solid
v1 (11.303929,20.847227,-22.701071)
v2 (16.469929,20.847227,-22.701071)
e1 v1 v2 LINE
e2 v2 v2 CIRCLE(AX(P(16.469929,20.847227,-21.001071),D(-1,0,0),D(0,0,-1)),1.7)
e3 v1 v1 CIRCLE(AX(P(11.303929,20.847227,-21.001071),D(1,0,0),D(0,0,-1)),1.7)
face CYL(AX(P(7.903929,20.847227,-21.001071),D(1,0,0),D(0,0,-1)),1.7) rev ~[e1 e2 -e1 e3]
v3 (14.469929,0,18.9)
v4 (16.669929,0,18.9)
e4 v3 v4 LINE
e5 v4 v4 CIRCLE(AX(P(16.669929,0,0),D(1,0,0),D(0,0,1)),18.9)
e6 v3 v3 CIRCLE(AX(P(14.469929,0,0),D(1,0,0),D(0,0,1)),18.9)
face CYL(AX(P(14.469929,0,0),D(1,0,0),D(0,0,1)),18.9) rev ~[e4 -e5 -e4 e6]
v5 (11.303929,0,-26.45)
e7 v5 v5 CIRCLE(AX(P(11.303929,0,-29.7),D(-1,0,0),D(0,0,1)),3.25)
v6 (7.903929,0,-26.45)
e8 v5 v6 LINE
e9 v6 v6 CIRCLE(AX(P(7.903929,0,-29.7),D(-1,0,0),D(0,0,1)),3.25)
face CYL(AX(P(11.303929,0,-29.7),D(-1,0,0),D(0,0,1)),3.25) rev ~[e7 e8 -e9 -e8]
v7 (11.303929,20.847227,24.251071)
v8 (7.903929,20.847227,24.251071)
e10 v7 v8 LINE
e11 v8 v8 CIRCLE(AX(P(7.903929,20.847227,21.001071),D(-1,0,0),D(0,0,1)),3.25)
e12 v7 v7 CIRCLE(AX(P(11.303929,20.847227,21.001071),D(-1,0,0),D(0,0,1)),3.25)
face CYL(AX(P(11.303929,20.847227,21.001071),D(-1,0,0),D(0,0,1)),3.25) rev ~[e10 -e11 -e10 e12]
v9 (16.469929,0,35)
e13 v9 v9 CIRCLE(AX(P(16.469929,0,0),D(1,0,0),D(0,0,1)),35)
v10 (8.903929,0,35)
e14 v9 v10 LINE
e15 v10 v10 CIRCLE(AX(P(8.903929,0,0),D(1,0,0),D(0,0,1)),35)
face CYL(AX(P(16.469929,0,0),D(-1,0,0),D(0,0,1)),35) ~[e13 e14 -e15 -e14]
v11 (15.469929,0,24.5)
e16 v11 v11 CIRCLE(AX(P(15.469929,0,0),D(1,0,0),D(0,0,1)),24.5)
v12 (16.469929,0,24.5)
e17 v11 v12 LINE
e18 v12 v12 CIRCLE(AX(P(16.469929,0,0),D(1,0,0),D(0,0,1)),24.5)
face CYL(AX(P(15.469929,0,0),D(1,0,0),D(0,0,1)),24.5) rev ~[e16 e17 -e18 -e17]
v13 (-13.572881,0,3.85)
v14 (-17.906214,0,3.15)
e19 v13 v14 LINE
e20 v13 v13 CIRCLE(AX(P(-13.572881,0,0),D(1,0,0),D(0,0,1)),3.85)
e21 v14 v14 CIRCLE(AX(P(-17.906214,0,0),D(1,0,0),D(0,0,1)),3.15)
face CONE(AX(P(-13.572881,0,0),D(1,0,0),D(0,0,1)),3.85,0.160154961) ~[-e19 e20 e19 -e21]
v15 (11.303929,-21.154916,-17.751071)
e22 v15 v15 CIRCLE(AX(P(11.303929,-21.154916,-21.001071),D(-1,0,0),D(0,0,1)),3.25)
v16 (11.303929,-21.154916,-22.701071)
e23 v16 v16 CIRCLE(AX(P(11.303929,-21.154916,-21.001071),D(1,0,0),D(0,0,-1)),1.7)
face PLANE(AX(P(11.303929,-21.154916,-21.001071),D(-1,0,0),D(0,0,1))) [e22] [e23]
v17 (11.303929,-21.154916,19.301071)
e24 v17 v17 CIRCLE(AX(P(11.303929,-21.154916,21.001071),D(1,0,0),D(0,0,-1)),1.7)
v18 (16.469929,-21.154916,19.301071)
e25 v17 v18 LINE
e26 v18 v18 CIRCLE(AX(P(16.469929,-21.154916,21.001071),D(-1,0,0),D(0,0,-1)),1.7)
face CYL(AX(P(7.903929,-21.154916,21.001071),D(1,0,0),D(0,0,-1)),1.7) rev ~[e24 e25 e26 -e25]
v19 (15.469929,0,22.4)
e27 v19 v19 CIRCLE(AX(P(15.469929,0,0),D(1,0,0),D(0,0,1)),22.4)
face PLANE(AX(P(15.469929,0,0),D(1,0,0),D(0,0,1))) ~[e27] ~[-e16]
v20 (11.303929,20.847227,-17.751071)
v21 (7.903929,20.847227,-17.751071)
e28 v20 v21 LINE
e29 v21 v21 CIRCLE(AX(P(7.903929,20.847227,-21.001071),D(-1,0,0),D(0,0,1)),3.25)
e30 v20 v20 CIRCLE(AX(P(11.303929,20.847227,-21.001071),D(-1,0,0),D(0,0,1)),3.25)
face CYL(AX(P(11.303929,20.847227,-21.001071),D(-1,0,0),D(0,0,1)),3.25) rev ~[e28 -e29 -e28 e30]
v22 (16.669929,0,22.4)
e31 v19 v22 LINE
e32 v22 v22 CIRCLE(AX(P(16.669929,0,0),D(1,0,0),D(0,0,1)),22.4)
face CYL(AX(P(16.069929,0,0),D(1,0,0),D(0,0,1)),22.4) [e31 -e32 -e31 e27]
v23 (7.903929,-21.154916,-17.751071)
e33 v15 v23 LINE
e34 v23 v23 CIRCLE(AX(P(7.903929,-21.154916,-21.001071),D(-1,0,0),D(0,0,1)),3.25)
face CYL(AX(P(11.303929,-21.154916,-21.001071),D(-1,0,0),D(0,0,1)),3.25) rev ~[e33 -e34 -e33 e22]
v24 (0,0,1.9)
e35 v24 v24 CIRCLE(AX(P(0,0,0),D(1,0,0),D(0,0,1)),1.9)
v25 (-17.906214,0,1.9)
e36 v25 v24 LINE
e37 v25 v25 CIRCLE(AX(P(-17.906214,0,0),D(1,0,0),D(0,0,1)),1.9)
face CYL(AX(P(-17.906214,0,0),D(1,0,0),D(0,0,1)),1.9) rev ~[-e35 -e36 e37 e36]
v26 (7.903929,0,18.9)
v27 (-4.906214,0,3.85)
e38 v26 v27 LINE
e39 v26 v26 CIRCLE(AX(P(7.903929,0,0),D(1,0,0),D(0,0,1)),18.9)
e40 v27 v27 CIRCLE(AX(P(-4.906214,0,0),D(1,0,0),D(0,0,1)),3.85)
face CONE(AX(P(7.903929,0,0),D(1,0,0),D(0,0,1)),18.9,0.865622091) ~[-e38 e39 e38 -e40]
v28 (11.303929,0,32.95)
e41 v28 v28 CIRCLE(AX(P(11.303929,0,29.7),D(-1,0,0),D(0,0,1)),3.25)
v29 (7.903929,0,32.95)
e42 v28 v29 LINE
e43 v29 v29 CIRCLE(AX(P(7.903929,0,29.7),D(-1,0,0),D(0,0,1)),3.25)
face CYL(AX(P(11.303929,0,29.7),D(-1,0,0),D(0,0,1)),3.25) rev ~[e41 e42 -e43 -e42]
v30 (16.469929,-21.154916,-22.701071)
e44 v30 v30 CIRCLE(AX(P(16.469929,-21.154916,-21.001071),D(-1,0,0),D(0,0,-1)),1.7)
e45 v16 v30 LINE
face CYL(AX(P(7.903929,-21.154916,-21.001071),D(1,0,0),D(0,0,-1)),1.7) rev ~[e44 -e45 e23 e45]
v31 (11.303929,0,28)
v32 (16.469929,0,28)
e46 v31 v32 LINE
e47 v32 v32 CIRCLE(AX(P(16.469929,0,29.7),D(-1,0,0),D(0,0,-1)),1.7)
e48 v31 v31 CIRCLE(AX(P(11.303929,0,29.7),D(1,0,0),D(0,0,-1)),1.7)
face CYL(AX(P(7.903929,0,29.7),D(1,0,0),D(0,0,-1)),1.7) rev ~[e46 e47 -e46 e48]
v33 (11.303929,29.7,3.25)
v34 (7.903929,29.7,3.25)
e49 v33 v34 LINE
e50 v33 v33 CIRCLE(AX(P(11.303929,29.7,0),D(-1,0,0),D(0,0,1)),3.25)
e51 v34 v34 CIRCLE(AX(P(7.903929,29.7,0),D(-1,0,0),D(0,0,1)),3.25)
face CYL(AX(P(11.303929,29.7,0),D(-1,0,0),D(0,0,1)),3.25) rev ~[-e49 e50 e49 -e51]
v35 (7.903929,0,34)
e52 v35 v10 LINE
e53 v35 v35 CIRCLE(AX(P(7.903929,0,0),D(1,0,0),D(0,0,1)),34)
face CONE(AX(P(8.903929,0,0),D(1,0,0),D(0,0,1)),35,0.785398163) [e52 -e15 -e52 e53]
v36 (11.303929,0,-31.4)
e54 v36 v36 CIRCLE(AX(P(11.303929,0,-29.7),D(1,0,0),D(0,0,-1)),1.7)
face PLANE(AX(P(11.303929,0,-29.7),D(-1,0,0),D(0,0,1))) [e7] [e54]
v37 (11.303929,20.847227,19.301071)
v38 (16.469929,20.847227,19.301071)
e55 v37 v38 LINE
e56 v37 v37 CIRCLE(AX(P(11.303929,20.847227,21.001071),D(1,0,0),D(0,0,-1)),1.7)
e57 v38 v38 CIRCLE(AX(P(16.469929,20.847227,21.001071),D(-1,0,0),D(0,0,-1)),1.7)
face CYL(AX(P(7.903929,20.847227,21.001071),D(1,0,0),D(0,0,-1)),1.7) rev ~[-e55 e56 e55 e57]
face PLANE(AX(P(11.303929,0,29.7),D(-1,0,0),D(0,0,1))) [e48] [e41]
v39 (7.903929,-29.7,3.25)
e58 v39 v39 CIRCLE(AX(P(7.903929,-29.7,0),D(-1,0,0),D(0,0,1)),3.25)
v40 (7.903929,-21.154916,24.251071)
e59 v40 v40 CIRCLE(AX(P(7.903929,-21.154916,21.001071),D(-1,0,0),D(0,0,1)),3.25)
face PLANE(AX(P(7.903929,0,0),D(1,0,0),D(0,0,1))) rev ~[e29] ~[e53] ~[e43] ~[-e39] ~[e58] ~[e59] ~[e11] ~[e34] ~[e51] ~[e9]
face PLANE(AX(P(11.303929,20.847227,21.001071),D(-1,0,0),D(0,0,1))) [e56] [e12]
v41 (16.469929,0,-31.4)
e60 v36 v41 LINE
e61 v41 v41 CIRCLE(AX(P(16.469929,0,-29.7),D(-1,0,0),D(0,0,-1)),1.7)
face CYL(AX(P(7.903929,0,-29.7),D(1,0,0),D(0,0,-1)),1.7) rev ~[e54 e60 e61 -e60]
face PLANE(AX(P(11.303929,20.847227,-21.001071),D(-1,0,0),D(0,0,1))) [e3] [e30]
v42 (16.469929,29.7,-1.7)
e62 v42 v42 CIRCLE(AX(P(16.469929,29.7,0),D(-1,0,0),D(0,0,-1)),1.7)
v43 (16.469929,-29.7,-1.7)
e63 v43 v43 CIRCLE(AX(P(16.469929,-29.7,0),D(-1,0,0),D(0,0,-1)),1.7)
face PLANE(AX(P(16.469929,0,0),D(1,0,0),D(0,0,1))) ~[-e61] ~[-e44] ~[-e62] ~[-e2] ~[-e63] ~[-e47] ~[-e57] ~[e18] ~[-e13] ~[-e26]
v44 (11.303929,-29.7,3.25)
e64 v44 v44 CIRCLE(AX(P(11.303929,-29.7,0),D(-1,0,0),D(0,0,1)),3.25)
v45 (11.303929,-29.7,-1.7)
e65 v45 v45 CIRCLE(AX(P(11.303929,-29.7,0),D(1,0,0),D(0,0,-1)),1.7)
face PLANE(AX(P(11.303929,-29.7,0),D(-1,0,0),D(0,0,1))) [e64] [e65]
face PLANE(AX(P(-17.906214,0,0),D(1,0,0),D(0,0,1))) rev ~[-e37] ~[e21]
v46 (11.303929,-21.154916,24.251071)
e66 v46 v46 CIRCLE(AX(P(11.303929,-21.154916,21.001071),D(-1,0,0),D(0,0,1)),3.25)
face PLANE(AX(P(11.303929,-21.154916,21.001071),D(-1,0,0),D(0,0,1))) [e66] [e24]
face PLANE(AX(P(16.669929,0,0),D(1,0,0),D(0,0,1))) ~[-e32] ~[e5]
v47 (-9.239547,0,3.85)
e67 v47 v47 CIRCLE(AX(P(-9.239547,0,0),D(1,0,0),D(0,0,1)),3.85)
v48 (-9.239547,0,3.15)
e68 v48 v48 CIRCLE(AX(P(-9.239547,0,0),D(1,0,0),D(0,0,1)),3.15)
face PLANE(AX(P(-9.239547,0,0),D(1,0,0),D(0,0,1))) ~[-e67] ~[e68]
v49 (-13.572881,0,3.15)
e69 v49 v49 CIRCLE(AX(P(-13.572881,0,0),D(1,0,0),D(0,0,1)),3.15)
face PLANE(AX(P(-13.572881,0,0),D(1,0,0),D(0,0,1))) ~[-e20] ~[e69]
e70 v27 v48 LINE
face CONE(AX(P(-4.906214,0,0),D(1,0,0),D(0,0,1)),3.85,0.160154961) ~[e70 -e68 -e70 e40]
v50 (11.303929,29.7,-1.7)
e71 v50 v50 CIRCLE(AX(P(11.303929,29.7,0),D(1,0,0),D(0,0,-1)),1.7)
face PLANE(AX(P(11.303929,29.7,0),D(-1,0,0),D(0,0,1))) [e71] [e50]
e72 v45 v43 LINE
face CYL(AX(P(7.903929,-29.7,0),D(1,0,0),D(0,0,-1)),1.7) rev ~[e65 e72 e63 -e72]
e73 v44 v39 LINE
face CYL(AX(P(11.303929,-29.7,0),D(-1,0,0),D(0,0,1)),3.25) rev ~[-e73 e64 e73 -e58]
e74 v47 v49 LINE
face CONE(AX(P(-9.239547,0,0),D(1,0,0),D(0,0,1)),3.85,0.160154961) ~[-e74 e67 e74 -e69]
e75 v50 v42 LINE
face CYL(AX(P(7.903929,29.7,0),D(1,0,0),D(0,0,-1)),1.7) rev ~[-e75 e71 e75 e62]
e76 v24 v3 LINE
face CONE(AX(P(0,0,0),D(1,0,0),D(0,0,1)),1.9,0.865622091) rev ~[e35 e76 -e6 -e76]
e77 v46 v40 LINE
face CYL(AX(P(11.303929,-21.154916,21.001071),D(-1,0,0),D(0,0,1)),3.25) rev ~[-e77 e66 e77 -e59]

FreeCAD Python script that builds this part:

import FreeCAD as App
import Part
import Sketcher

V = App.Vector


def edges_at(feature, points):
    """Names of the edges that pass closest to the given points."""
    edges = feature.Shape.Edges
    near = lambda p: min(range(len(edges)), key=lambda i: edges[i].distToShape(Part.Vertex(*p))[0])
    return sorted({f"Edge{near(p) + 1}" for p in points})


def add_polygon(sketch, points):
    """Adds a closed chain of lines whose ends are joined by coincident constraints."""
    first, n = sketch.GeometryCount, len(points)
    for a, b in zip(points, points[1:] + points[:1]):
        sketch.addGeometry(Part.LineSegment(App.Vector(*a, 0), App.Vector(*b, 0)), False)
    for i in range(n):
        sketch.addConstraint(Sketcher.Constraint("Coincident", first + i, 2, first + (i + 1) % n, 1))

doc = App.newDocument("Part")
body = doc.addObject("PartDesign::Body", "Body")

sketch1 = body.newObject("Sketcher::SketchObject", "Sketch")
sketch1.AttachmentSupport = (doc.getObject("XY_Plane"), [""])
sketch1.MapMode = "FlatFace"
add_polygon(sketch1, [(-13.6, 3.1), (-13.6, 3.9), (-17.9, 3.1), (-17.9, 1.9), (0, 1.9), (14.5, 18.9), (16.7, 18.9), (16.7, 22.4), (15.5, 22.4), (15.5, 24.5), (16.5, 24.5), (16.5, 35), (7.9, 35), (7.9, 18.9), (-4.9, 3.9), (-9.2, 3.1), (-9.2, 3.9)])
sketch1.addConstraint([
    Sketcher.Constraint("Vertical", 0),
    Sketcher.Constraint("Vertical", 2),
    Sketcher.Constraint("Horizontal", 3),
    Sketcher.Constraint("Horizontal", 5),
    Sketcher.Constraint("Vertical", 6),
    Sketcher.Constraint("Horizontal", 7),
    Sketcher.Constraint("Vertical", 8),
    Sketcher.Constraint("Horizontal", 9),
    Sketcher.Constraint("Vertical", 10),
    Sketcher.Constraint("Horizontal", 11),
    Sketcher.Constraint("Vertical", 12),
    Sketcher.Constraint("Vertical", 15),
    Sketcher.Constraint("PointOnObject", 3, 2, -2),
    Sketcher.Constraint("Parallel", 4, 13),
    Sketcher.Constraint("Parallel", 1, 14),
    Sketcher.Constraint("Parallel", 14, 16),
    Sketcher.Constraint("Horizontal", 5, 2, 12, 2),
    Sketcher.Constraint("Horizontal", 0, 2, 13, 2),
    Sketcher.Constraint("Horizontal", 1, 2, 14, 2),
    Sketcher.Constraint("Horizontal", 13, 2, 15, 2),
    Sketcher.Constraint("Horizontal", 14, 2, 16, 2),
    Sketcher.Constraint("DistanceX", 9, 1, 9, 2, 1.0),
    Sketcher.Constraint("DistanceX", 5, 1, 5, 2, 2.2),
    Sketcher.Constraint("DistanceX", 7, 2, 7, 1, 1.2),
    Sketcher.Constraint("DistanceY", 0, 1, 0, 2, 0.7),
    Sketcher.Constraint("DistanceY", 6, 1, 6, 2, 3.5),
    Sketcher.Constraint("DistanceY", 8, 1, 8, 2, 2.1),
    Sketcher.Constraint("DistanceY", 10, 1, 10, 2, 10.5),
    Sketcher.Constraint("DistanceY", -1, 1, 10, 2, 35.0),
    Sketcher.Constraint("DistanceY", 3, 2, 4, 2, 17.0),
    Sketcher.Constraint("DistanceX", 1, 2, 13, 2, 13.0),
    Sketcher.Constraint("DistanceY", 2, 2, 2, 1, 1.25),
    Sketcher.Constraint("DistanceX", 11, 2, 11, 1, 8.566),
    Sketcher.Constraint("Distance", 4, 22.3244),
])
revolution = body.newObject("PartDesign::Revolution", "Revolution")
revolution.Profile = sketch1
revolution.ReferenceAxis = (sketch1, ["H_Axis"])
revolution.Angle = 360

sketch2 = body.newObject("Sketcher::SketchObject", "Sketch001")
sketch2.AttachmentSupport = (doc.getObject("YZ_Plane"), [""])
sketch2.MapMode = "FlatFace"
sketch2.AttachmentOffset = App.Placement(V(0, 0, 7.903929), App.Rotation())
sketch2.addGeometry([
    Part.Circle(V(-21.2, -21, 0), V(0, 0, 1), 1.7),
    Part.Circle(V(29.7, 0, 0), V(0, 0, 1), 1.7),
    Part.Circle(V(0, 29.7, 0), V(0, 0, 1), 1.7),
    Part.Circle(V(0, -29.7, 0), V(0, 0, 1), 1.7),
    Part.Circle(V(-29.7, 0, 0), V(0, 0, 1), 1.7),
    Part.Circle(V(20.8, -21, 0), V(0, 0, 1), 1.7),
    Part.Circle(V(20.8, 21, 0), V(0, 0, 1), 1.7),
    Part.Circle(V(-21.2, 21, 0), V(0, 0, 1), 1.7),
], False)
sketch2.addConstraint([
    Sketcher.Constraint("Equal", 0, 1),
    Sketcher.Constraint("Equal", 1, 2),
    Sketcher.Constraint("Equal", 2, 3),
    Sketcher.Constraint("Equal", 3, 4),
    Sketcher.Constraint("Equal", 4, 5),
    Sketcher.Constraint("Equal", 5, 6),
    Sketcher.Constraint("Equal", 6, 7),
    Sketcher.Constraint("Symmetric", 2, 3, 3, 3, -1, 1),
    Sketcher.Constraint("Symmetric", 1, 3, 4, 3, -1, 1),
    Sketcher.Constraint("Symmetric", 5, 3, 6, 3, -1),
    Sketcher.Constraint("Symmetric", 0, 3, 7, 3, -1),
    Sketcher.Constraint("PointOnObject", 1, 3, -1),
    Sketcher.Constraint("PointOnObject", 2, 3, -2),
    Sketcher.Constraint("Horizontal", 0, 3, 5, 3),
    Sketcher.Constraint("Diameter", 0, 3.4),
    Sketcher.Constraint("DistanceX", -1, 1, 1, 3, 29.7),
    Sketcher.Constraint("DistanceY", -1, 1, 2, 3, 29.7),
    Sketcher.Constraint("DistanceY", 0, 3, -1, 1, 21.001071),
    Sketcher.Constraint("DistanceX", 0, 3, -1, 1, 21.154916),
    Sketcher.Constraint("DistanceX", -1, 1, 5, 3, 20.847227),
])
doc.recompute()
hole = body.newObject("PartDesign::Hole", "Hole")
hole.Profile = sketch2
hole.ThreadType = "None"
hole.Diameter = 3.4
hole.DepthType = "Dimension"
hole.Depth = 8.566
hole.DrillPoint = "Angled"
hole.DrillPointAngle = 118
hole.HoleCutType = "Counterbore"
hole.HoleCutDiameter = 6.5
hole.HoleCutDepth = 3.4
hole.Reversed = True
doc.recompute()

chamfer = body.newObject("PartDesign::Chamfer", "Chamfer")
chamfer.Base = (hole, edges_at(hole, [(7.904, 0, -35)]))
chamfer.Size = 1

doc.recompute()
